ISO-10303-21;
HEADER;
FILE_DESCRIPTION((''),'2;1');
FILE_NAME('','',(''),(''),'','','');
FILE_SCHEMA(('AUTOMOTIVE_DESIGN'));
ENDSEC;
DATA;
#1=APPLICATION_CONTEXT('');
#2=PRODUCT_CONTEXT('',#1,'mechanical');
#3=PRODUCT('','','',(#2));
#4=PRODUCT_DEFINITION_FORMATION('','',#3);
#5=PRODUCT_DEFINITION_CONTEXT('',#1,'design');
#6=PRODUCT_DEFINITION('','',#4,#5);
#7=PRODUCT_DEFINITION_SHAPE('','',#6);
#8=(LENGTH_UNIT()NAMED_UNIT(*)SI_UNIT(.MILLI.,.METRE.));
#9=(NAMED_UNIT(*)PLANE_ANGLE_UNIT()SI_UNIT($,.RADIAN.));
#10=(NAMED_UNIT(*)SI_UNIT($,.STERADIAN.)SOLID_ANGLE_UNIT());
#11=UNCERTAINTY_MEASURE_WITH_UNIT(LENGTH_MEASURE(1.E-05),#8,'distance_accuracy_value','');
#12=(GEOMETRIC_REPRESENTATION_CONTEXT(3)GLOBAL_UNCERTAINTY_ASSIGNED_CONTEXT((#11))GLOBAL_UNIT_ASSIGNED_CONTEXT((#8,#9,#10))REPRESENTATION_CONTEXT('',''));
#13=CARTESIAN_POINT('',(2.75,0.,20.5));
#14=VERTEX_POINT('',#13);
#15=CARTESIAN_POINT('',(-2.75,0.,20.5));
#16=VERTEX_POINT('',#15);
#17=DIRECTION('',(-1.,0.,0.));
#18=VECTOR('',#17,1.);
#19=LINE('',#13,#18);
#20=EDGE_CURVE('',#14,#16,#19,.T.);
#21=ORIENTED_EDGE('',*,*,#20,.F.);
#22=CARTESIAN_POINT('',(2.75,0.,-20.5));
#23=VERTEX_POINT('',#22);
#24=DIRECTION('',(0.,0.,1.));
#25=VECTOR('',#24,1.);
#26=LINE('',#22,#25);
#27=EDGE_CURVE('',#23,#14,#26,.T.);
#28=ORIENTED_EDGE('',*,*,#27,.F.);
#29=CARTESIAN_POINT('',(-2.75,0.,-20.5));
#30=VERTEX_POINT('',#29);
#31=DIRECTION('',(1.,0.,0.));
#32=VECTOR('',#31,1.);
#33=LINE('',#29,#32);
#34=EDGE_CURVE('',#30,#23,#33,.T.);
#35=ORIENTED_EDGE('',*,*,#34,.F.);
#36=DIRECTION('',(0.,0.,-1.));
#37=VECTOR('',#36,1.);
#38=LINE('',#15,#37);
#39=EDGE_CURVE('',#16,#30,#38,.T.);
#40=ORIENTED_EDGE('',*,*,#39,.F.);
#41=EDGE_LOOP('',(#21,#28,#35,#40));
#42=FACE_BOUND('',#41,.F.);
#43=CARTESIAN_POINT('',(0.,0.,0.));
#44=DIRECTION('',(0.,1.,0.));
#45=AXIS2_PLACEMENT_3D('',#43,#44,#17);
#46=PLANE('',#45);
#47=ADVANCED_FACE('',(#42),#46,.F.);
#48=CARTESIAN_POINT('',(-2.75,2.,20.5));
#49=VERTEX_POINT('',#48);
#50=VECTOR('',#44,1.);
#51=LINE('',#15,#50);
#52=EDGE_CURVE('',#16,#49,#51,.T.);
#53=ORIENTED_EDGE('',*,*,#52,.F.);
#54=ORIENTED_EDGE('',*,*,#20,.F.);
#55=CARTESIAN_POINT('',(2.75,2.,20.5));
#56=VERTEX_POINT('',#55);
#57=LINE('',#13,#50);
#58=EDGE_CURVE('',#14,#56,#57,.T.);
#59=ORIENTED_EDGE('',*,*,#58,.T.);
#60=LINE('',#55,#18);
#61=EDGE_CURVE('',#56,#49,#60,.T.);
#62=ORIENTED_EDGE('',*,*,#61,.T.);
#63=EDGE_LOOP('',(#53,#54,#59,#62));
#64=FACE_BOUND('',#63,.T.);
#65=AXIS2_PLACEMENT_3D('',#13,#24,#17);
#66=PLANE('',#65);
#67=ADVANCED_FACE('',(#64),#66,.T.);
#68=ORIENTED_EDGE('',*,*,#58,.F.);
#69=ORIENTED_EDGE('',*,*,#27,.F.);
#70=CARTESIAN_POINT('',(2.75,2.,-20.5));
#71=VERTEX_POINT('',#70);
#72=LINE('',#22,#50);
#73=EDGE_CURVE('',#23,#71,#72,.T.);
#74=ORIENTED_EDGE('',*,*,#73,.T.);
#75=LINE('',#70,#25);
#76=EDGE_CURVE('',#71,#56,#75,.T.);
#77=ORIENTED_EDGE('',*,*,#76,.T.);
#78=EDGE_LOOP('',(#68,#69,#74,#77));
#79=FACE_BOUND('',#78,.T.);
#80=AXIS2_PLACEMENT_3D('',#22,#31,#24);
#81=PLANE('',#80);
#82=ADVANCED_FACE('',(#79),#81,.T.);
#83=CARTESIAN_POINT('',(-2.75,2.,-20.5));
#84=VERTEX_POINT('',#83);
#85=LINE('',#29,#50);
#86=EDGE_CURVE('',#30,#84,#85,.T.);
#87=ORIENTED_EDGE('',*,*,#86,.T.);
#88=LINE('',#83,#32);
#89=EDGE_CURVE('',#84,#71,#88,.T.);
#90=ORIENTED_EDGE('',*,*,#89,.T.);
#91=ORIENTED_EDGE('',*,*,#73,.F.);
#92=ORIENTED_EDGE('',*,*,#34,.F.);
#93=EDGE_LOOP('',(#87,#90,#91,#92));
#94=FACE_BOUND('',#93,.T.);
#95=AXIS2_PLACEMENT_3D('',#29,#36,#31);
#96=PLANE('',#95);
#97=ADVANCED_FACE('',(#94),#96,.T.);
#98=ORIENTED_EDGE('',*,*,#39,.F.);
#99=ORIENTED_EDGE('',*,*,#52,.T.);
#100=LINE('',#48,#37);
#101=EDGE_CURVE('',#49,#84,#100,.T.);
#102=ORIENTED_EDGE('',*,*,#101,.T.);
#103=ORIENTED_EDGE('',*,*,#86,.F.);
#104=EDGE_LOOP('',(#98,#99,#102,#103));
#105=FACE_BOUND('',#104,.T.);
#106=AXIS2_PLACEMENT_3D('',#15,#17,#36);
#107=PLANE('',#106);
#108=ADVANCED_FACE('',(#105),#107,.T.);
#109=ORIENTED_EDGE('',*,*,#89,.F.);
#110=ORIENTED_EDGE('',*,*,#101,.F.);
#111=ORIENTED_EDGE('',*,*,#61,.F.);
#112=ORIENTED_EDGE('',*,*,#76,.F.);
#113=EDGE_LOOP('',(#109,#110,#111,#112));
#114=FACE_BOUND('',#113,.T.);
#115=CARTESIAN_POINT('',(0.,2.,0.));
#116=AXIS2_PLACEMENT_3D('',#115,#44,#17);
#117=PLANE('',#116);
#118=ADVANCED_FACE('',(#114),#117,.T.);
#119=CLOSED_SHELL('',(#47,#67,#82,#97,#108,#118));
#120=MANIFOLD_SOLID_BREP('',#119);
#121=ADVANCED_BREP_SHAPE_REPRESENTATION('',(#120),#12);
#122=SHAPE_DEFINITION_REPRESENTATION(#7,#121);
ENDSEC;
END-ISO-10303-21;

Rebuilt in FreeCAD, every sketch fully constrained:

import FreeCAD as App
import Part
import Sketcher
from FreeCAD import Vector

doc = App.newDocument("Part")
body = doc.addObject("PartDesign::Body", "Body")

# Sketch on XZ plane
sketch1 = body.newObject("Sketcher::SketchObject", "Sketch")
sketch1.AttachmentSupport = (doc.getObject("XZ_Plane"), [""])
sketch1.MapMode = "FlatFace"
sketch1.addGeometry([
    Part.LineSegment(Vector(-3, 20, 0), Vector(3, 20, 0)),
    Part.LineSegment(Vector(3, 20, 0), Vector(3, -20, 0)),
    Part.LineSegment(Vector(3, -20, 0), Vector(-3, -20, 0)),
    Part.LineSegment(Vector(-3, -20, 0), Vector(-3, 20, 0)),
], False)
sketch1.addConstraint([
    Sketcher.Constraint("Coincident", 0, 2, 1, 1),
    Sketcher.Constraint("Coincident", 1, 2, 2, 1),
    Sketcher.Constraint("Coincident", 2, 2, 3, 1),
    Sketcher.Constraint("Coincident", 3, 2, 0, 1),
    Sketcher.Constraint("Horizontal", 0),
    Sketcher.Constraint("Vertical", 1),
    Sketcher.Constraint("Horizontal", 2),
    Sketcher.Constraint("Vertical", 3),
    Sketcher.Constraint("Symmetric", 0, 2, 2, 2, -1, 1),
    Sketcher.Constraint("DistanceY", 1, 2, 1, 1, 41.0),
    Sketcher.Constraint("DistanceX", 0, 1, 0, 2, 5.5),
])
pad1 = body.newObject("PartDesign::Pad", "Pad")
pad1.Profile = sketch1
pad1.Length = 2
pad1.Reversed = True

doc.recompute()
